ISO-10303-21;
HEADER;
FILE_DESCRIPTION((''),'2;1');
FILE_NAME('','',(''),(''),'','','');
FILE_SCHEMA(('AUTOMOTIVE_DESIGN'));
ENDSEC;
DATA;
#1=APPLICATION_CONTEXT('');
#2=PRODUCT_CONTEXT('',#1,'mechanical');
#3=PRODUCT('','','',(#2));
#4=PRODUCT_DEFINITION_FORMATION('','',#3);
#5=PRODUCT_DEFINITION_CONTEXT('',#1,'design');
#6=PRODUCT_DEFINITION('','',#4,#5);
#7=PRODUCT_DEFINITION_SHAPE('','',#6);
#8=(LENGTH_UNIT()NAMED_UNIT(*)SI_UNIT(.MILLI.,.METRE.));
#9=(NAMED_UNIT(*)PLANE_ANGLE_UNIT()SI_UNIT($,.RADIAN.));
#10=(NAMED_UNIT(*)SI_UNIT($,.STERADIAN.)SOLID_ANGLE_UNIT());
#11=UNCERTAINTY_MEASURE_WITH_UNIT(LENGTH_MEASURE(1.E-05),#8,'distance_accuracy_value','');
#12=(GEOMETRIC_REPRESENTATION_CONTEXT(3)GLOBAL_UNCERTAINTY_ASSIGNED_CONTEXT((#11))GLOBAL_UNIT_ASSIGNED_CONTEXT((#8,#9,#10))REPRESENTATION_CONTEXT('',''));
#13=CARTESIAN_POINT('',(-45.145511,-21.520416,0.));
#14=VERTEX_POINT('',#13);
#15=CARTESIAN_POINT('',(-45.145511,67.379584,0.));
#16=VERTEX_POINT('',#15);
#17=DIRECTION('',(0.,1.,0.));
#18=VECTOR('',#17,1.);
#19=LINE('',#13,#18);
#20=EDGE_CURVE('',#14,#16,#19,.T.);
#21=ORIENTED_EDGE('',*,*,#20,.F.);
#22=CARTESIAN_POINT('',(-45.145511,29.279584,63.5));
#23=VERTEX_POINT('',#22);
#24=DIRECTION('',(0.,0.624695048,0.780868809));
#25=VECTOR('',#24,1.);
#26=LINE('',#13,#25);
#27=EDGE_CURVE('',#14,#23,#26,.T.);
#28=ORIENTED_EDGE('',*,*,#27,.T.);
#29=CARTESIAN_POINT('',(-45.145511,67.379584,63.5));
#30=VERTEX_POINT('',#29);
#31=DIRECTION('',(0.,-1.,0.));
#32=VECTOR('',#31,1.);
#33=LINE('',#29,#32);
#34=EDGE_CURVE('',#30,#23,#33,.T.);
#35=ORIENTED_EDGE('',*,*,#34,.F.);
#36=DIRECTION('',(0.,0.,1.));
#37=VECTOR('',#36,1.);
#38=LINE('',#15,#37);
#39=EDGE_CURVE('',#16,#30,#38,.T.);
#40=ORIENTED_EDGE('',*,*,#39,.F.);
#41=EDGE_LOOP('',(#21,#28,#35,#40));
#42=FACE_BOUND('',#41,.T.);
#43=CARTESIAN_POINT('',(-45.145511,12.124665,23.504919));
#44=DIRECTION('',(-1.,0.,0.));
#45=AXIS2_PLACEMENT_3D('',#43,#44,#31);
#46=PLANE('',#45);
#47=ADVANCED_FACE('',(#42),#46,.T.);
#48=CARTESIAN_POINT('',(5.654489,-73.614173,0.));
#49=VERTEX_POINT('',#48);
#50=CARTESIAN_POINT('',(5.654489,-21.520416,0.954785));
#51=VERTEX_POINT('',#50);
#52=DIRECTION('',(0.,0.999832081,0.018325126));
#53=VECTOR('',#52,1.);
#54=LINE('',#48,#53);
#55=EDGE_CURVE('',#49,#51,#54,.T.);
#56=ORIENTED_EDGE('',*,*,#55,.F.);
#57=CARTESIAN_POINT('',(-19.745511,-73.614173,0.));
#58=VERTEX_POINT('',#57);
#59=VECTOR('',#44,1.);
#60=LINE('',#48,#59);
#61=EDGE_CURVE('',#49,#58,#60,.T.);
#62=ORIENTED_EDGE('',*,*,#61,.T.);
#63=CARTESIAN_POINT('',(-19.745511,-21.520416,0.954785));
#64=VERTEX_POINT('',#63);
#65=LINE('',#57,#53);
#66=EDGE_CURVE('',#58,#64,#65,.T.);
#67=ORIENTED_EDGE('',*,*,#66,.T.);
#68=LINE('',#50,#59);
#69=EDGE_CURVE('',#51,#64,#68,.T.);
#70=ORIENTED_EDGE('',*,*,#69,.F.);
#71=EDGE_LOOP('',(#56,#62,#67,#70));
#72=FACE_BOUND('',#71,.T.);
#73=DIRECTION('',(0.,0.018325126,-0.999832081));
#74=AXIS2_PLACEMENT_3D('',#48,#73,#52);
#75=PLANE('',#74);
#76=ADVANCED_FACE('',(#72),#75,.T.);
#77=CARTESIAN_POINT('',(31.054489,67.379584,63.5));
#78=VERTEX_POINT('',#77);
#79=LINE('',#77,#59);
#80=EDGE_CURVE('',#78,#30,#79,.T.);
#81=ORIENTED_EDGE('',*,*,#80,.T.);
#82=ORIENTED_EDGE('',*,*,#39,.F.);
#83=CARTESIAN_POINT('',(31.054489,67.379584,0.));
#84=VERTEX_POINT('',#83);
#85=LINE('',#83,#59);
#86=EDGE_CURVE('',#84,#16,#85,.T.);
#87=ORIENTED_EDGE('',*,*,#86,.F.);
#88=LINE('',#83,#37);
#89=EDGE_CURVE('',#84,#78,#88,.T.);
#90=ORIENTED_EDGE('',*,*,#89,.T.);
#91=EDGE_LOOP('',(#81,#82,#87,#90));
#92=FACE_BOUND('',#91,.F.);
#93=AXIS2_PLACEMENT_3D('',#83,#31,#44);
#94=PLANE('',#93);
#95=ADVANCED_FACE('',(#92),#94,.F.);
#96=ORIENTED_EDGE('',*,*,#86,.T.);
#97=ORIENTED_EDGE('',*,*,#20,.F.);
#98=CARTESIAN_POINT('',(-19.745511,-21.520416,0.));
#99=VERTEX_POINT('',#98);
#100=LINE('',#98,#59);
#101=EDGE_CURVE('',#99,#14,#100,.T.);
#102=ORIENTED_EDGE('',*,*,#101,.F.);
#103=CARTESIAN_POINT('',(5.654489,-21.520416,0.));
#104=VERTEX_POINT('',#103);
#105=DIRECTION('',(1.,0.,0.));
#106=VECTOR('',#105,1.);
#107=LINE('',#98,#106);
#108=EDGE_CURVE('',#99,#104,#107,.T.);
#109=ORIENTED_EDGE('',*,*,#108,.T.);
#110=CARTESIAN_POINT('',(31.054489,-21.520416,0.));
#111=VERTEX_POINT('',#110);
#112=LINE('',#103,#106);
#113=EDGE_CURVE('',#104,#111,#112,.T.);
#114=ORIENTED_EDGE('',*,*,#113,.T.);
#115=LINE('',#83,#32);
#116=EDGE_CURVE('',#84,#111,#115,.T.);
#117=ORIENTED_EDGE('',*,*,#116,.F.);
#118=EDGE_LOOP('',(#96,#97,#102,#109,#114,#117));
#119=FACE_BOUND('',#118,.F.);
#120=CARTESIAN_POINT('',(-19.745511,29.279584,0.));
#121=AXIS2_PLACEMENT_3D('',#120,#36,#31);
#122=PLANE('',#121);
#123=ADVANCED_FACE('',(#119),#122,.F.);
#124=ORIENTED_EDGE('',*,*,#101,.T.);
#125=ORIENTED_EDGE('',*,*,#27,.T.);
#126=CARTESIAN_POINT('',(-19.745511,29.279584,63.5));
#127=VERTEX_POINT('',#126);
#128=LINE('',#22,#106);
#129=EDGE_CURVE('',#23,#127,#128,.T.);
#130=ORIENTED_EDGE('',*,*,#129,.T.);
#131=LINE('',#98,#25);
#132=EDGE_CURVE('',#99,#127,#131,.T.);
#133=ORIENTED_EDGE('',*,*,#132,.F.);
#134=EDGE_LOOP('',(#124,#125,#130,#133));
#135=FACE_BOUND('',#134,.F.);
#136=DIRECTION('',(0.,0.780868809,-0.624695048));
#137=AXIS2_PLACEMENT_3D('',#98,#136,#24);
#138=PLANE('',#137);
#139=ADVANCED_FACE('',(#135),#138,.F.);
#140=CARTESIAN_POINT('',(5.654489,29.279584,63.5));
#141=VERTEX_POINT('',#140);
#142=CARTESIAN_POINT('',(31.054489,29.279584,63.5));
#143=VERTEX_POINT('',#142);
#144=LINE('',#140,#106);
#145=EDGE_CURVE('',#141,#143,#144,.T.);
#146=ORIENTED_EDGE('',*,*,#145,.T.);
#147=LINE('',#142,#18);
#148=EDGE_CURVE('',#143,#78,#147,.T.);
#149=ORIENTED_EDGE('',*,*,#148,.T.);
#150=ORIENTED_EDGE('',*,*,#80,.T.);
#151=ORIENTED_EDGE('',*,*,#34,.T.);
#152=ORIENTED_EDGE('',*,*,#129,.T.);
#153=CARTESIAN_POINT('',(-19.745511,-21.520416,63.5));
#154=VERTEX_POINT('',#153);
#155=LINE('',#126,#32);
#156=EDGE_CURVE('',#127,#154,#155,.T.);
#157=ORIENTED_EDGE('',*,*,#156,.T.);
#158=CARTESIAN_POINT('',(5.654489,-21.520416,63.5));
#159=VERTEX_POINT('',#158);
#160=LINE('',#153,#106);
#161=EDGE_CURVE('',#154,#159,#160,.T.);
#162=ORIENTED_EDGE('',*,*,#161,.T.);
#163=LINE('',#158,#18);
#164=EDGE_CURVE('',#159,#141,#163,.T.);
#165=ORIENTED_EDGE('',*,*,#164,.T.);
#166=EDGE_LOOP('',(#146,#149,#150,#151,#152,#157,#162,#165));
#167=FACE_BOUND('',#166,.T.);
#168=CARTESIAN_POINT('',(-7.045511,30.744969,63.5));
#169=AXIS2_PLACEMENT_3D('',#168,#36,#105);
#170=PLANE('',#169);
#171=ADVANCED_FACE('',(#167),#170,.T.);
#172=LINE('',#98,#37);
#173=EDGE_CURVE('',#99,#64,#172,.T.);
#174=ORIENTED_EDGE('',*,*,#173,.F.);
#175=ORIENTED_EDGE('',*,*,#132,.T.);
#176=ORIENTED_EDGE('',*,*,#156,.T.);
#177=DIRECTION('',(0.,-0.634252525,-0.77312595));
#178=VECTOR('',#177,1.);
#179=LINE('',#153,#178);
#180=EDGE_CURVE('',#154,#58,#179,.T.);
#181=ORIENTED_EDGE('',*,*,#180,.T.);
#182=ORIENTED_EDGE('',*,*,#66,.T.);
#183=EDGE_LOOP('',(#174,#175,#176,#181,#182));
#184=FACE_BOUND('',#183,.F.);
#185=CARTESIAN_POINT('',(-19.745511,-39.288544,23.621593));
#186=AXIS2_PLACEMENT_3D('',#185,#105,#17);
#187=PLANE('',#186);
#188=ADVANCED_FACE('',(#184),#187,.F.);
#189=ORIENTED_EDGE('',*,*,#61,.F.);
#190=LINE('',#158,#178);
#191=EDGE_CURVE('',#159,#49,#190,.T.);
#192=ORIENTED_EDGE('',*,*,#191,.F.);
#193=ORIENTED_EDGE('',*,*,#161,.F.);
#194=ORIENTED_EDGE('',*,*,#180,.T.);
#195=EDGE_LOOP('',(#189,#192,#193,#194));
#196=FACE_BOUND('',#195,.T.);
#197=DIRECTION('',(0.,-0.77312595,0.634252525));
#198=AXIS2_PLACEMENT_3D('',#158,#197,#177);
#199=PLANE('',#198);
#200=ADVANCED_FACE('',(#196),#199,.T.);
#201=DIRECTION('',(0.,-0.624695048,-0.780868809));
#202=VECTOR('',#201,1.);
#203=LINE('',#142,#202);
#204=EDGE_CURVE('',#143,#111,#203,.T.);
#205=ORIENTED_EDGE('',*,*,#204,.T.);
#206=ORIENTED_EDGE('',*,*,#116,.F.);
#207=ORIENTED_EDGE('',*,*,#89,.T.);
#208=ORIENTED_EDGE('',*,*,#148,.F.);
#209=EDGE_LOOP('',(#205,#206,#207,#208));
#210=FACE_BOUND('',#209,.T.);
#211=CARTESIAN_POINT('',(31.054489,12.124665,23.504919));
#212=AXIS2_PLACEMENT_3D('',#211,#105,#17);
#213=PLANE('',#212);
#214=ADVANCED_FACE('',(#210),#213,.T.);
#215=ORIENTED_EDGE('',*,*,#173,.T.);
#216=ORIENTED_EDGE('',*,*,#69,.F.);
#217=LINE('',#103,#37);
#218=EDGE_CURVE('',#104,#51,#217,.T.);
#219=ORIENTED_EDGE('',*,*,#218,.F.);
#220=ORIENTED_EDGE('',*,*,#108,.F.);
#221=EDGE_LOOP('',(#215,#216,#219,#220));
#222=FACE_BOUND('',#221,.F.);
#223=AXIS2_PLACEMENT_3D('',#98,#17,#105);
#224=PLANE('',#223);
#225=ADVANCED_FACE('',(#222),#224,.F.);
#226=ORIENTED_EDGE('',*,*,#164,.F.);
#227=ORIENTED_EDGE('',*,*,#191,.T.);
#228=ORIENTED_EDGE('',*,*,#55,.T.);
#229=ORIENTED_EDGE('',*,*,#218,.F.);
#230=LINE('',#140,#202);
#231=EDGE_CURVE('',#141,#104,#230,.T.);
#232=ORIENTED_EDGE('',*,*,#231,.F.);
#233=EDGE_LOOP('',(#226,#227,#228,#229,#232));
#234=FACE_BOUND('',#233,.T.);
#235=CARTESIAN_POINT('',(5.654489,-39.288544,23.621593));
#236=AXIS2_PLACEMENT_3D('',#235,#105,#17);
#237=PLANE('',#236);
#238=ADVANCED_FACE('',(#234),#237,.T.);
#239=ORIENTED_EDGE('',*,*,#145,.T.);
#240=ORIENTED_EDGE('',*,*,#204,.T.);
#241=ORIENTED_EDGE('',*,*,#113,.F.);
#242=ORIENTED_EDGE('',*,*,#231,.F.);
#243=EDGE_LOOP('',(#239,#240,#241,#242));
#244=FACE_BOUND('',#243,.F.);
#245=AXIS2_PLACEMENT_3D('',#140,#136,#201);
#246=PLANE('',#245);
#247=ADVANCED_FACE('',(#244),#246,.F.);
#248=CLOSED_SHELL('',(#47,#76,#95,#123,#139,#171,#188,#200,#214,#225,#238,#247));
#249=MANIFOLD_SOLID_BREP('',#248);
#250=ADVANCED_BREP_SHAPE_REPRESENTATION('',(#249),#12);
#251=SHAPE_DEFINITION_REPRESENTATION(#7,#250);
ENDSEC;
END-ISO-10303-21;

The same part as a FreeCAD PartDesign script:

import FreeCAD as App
import Part
import Sketcher
Q = App.Units.Quantity

doc = App.newDocument("Part")
body = doc.addObject("PartDesign::Body", "Body")

sketch1 = body.newObject("Sketcher::SketchObject", "Sketch")
sketch1.AttachmentSupport = (doc.getObject("XY_Plane"), [""])
sketch1.MapMode = "FlatFace"
sketch1.addGeometry(Part.LineSegment(App.Vector(31, 67, 0), App.Vector(-45, 67, 0)), False)
sketch1.addGeometry(Part.LineSegment(App.Vector(-45, 67, 0), App.Vector(-45, 29, 0)), False)
sketch1.addGeometry(Part.LineSegment(App.Vector(-45, 29, 0), App.Vector(-20, 29, 0)), False)
sketch1.addGeometry(Part.LineSegment(App.Vector(-20, 29, 0), App.Vector(-20, -22, 0)), False)
sketch1.addGeometry(Part.LineSegment(App.Vector(-20, -22, 0), App.Vector(6, -22, 0)), False)
sketch1.addGeometry(Part.LineSegment(App.Vector(6, -22, 0), App.Vector(6, 29, 0)), False)
sketch1.addGeometry(Part.LineSegment(App.Vector(6, 29, 0), App.Vector(31, 29, 0)), False)
sketch1.addGeometry(Part.LineSegment(App.Vector(31, 29, 0), App.Vector(31, 67, 0)), False)
sketch1.addConstraint(Sketcher.Constraint("Coincident", 0, 2, 1, 1))
sketch1.addConstraint(Sketcher.Constraint("Coincident", 1, 2, 2, 1))
sketch1.addConstraint(Sketcher.Constraint("Coincident", 2, 2, 3, 1))
sketch1.addConstraint(Sketcher.Constraint("Coincident", 3, 2, 4, 1))
sketch1.addConstraint(Sketcher.Constraint("Coincident", 4, 2, 5, 1))
sketch1.addConstraint(Sketcher.Constraint("Coincident", 5, 2, 6, 1))
sketch1.addConstraint(Sketcher.Constraint("Coincident", 6, 2, 7, 1))
sketch1.addConstraint(Sketcher.Constraint("Coincident", 7, 2, 0, 1))
sketch1.addConstraint(Sketcher.Constraint("Horizontal", 0))
sketch1.addConstraint(Sketcher.Constraint("Vertical", 1))
sketch1.addConstraint(Sketcher.Constraint("Horizontal", 2))
sketch1.addConstraint(Sketcher.Constraint("Vertical", 3))
sketch1.addConstraint(Sketcher.Constraint("Horizontal", 4))
sketch1.addConstraint(Sketcher.Constraint("Vertical", 5))
sketch1.addConstraint(Sketcher.Constraint("Horizontal", 6))
sketch1.addConstraint(Sketcher.Constraint("Vertical", 7))
sketch1.addConstraint(Sketcher.Constraint("Horizontal", 2, 2, 5, 2))
sketch1.addConstraint(Sketcher.Constraint("Equal", 2, 4))
sketch1.addConstraint(Sketcher.Constraint("Equal", 4, 6))
sketch1.addConstraint(Sketcher.Constraint("DistanceX", 0, 2, 0, 1, Q("3 in")))
sketch1.addConstraint(Sketcher.Constraint("DistanceY", 3, 2, 3, 1, Q("2 in")))
sketch1.addConstraint(Sketcher.Constraint("DistanceY", 1, 2, 1, 1, Q("1.5 in")))
sketch1.addConstraint(Sketcher.Constraint("DistanceX", 0, 2, -1, 1, Q("45.145511 mm")))
sketch1.addConstraint(Sketcher.Constraint("DistanceY", -1, 1, 0, 2, Q("67.379584 mm")))
pad1 = body.newObject("PartDesign::Pad", "Pad")
pad1.Profile = sketch1
pad1.Length = Q("2.5 in")

sketch2 = body.newObject("Sketcher::SketchObject", "Sketch001")
sketch2.AttachmentSupport = (doc.getObject("YZ_Plane"), [""])
sketch2.MapMode = "FlatFace"
sketch2.AttachmentOffset = App.Placement(App.Vector(0, 0, 5.654489), App.Rotation())
sketch2.addGeometry(Part.LineSegment(App.Vector(29, 0, 0), App.Vector(29, 64, 0)), False)
sketch2.addGeometry(Part.LineSegment(App.Vector(29, 64, 0), App.Vector(-22, 0, 0)), False)
sketch2.addGeometry(Part.LineSegment(App.Vector(-22, 0, 0), App.Vector(29, 0, 0)), False)
sketch2.addConstraint(Sketcher.Constraint("Coincident", 0, 2, 1, 1))
sketch2.addConstraint(Sketcher.Constraint("Coincident", 1, 2, 2, 1))
sketch2.addConstraint(Sketcher.Constraint("Coincident", 2, 2, 0, 1))
sketch2.addConstraint(Sketcher.Constraint("Vertical", 0))
sketch2.addConstraint(Sketcher.Constraint("Horizontal", 2))
sketch2.addConstraint(Sketcher.Constraint("PointOnObject", 1, 2, -1))
sketch2.addConstraint(Sketcher.Constraint("DistanceX", 2, 1, 2, 2, Q("2 in")))
sketch2.addConstraint(Sketcher.Constraint("DistanceY", 0, 1, 0, 2, Q("2.5 in")))
sketch2.addConstraint(Sketcher.Constraint("DistanceX", -1, 1, 0, 2, Q("29.279584 mm")))
pad2 = body.newObject("PartDesign::Pad", "Pad001")
pad2.Profile = sketch2
pad2.Length = Q("1 in")

sketch3 = body.newObject("Sketcher::SketchObject", "Sketch002")
sketch3.AttachmentSupport = (doc.getObject("YZ_Plane"), [""])
sketch3.MapMode = "FlatFace"
sketch3.AttachmentOffset = App.Placement(App.Vector(0, 0, 5.654489), App.Rotation())
sketch3.addGeometry(Part.LineSegment(App.Vector(-22, 1, 0), App.Vector(-22, 64, 0)), False)
sketch3.addGeometry(Part.LineSegment(App.Vector(-22, 64, 0), App.Vector(-74, 0, 0)), False)
sketch3.addGeometry(Part.LineSegment(App.Vector(-74, 0, 0), App.Vector(-22, 1, 0)), False)
sketch3.addConstraint(Sketcher.Constraint("Coincident", 0, 2, 1, 1))
sketch3.addConstraint(Sketcher.Constraint("Coincident", 1, 2, 2, 1))
sketch3.addConstraint(Sketcher.Constraint("Coincident", 2, 2, 0, 1))
sketch3.addConstraint(Sketcher.Constraint("Vertical", 0))
sketch3.addConstraint(Sketcher.Constraint("PointOnObject", 1, 2, -1))
sketch3.addConstraint(Sketcher.Constraint("DistanceY", -1, 1, 0, 2, Q("2.5 in")))
sketch3.addConstraint(Sketcher.Constraint("Angle", 2, Q("1.050011 deg")))
sketch3.addConstraint(Sketcher.Constraint("DistanceY", 0, 1, 0, 2, Q("62.545215 mm")))
sketch3.addConstraint(Sketcher.Constraint("DistanceX", 0, 2, -1, 1, Q("21.520416 mm")))
pad3 = body.newObject("PartDesign::Pad", "Pad002")
pad3.Profile = sketch3
pad3.Length = Q("1 in")
pad3.Reversed = True

sketch4 = body.newObject("Sketcher::SketchObject", "Sketch003")
sketch4.AttachmentSupport = (doc.getObject("YZ_Plane"), [""])
sketch4.MapMode = "FlatFace"
sketch4.AttachmentOffset = App.Placement(App.Vector(0, 0, -19.745511), App.Rotation())
sketch4.addGeometry(Part.LineSegment(App.Vector(-22, 0, 0), App.Vector(29, 64, 0)), False)
sketch4.addGeometry(Part.LineSegment(App.Vector(29, 64, 0), App.Vector(29, 0, 0)), False)
sketch4.addGeometry(Part.LineSegment(App.Vector(29, 0, 0), App.Vector(-22, 0, 0)), False)
sketch4.addConstraint(Sketcher.Constraint("Coincident", 0, 2, 1, 1))
sketch4.addConstraint(Sketcher.Constraint("Coincident", 1, 2, 2, 1))
sketch4.addConstraint(Sketcher.Constraint("Coincident", 2, 2, 0, 1))
sketch4.addConstraint(Sketcher.Constraint("Vertical", 1))
sketch4.addConstraint(Sketcher.Constraint("Horizontal", 2))
sketch4.addConstraint(Sketcher.Constraint("PointOnObject", 1, 2, -1))
sketch4.addConstraint(Sketcher.Constraint("DistanceX", 2, 2, 2, 1, Q("2 in")))
sketch4.addConstraint(Sketcher.Constraint("DistanceY", 1, 2, 1, 1, Q("2.5 in")))
sketch4.addConstraint(Sketcher.Constraint("DistanceX", -1, 1, 0, 2, Q("29.279584 mm")))
pad4 = body.newObject("PartDesign::Pad", "Pad003")
pad4.Profile = sketch4
pad4.Length = Q("1 in")
pad4.Reversed = True

doc.recompute()
